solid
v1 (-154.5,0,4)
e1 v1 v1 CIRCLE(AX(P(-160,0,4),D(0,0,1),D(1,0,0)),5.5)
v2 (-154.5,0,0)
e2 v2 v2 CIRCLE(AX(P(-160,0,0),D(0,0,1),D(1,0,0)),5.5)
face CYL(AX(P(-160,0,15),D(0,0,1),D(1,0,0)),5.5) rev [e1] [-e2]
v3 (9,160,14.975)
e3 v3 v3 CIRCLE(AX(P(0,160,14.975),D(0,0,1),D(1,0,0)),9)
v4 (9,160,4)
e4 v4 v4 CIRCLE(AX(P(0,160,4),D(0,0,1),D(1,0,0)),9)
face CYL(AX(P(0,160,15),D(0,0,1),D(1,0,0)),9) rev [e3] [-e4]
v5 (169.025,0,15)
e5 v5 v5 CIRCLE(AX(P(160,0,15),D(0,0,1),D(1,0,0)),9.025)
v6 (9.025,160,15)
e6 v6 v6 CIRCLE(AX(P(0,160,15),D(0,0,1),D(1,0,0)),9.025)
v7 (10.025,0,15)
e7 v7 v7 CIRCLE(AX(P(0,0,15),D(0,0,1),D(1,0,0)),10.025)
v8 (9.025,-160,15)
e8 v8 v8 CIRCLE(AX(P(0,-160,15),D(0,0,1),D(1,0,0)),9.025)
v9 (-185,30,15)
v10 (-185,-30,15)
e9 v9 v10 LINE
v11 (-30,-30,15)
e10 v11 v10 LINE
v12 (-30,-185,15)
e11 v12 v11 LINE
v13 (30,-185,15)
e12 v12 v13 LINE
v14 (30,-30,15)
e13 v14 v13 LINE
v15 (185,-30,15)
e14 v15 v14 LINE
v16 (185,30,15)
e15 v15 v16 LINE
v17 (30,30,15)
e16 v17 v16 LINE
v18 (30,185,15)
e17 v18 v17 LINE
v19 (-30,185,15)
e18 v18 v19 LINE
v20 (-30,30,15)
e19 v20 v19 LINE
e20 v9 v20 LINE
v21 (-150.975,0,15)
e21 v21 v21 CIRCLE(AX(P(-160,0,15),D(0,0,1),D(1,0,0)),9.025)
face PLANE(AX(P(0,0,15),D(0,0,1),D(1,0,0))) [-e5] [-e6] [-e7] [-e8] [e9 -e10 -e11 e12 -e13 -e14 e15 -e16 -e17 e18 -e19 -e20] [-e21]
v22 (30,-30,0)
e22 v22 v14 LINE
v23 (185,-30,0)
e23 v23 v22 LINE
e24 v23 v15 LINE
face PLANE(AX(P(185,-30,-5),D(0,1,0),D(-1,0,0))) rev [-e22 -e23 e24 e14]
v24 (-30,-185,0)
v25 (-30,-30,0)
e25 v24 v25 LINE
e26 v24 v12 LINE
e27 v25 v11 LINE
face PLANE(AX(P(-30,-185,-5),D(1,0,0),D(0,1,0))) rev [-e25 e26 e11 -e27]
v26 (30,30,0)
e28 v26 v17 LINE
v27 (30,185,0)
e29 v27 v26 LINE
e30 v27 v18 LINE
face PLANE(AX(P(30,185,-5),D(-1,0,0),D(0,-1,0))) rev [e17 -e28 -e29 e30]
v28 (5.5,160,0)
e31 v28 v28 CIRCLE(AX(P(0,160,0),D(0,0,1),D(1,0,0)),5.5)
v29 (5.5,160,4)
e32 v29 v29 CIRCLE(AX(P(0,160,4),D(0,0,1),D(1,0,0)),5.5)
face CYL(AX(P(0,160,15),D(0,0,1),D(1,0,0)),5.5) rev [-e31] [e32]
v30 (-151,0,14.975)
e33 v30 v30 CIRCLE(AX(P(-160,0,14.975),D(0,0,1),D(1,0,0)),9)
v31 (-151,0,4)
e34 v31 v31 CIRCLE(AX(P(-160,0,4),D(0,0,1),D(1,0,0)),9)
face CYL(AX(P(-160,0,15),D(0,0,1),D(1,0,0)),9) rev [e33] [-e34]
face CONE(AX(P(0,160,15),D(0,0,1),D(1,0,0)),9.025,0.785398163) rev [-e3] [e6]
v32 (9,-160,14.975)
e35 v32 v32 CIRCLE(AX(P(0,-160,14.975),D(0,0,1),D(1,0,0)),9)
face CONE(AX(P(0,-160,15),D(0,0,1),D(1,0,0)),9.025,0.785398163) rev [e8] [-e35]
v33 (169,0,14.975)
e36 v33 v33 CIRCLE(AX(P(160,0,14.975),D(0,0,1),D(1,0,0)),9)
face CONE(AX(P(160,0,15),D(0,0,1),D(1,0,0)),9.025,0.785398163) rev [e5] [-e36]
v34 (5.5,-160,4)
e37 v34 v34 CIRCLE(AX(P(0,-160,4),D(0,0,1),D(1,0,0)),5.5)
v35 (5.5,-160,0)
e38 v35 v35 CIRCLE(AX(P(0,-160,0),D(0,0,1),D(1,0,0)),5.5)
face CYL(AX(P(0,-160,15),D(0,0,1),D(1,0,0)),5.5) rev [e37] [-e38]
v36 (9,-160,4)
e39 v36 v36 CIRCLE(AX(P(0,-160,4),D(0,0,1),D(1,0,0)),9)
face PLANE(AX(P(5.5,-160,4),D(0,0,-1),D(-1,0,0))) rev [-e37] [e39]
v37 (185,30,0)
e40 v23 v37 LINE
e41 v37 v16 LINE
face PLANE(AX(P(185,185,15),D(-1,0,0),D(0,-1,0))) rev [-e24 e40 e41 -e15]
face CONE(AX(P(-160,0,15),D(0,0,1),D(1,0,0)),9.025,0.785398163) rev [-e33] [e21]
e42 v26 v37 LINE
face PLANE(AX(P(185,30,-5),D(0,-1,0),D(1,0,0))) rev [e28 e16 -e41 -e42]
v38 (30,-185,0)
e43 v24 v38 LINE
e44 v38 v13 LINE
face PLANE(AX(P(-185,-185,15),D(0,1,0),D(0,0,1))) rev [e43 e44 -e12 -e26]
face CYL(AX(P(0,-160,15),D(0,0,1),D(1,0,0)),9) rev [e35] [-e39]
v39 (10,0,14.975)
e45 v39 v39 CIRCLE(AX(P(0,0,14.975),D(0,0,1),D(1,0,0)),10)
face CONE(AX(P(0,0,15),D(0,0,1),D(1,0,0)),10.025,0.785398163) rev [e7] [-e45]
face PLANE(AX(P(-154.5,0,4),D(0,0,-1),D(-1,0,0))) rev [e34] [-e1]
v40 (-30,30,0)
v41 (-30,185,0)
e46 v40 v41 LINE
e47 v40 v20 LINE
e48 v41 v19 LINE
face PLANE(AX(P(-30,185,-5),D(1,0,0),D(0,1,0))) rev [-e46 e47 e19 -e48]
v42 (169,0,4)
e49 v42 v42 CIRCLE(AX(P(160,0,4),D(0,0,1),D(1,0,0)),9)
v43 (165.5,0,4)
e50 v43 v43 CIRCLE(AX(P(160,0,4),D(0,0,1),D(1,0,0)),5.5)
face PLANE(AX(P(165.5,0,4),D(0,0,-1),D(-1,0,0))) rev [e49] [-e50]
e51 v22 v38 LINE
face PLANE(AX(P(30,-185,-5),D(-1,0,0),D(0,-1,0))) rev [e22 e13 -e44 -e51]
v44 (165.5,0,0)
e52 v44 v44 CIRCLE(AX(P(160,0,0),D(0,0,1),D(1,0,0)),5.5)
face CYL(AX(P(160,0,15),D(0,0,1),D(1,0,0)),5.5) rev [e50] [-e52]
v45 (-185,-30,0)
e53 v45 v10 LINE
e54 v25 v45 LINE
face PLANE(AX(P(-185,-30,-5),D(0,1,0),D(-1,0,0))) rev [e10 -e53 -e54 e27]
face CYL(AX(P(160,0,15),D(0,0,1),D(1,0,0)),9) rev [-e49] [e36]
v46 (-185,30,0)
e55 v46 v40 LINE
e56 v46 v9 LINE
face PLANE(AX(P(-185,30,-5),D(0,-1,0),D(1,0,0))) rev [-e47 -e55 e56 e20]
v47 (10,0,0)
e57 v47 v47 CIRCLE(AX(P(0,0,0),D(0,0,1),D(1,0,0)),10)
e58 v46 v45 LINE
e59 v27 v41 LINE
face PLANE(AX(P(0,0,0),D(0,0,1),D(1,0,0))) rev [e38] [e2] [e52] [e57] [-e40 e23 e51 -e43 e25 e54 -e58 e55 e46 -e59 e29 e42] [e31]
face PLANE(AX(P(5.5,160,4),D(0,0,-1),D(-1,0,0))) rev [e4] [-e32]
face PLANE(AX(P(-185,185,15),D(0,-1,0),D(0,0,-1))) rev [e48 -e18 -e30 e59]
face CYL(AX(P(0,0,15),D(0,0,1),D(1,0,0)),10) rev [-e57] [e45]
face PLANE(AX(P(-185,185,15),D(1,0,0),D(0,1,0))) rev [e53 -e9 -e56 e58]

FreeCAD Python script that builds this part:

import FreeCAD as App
import Part
import Sketcher
Q = App.Units.Quantity

doc = App.newDocument("Part")
body = doc.addObject("PartDesign::Body", "Body")

sketch1 = body.newObject("Sketcher::SketchObject", "Sketch")
sketch1.AttachmentSupport = (doc.getObject("XY_Plane"), [""])
sketch1.MapMode = "FlatFace"
sketch1.addGeometry(Part.LineSegment(App.Vector(-185, 185, 0), App.Vector(-185, -185, 0)), False)
sketch1.addGeometry(Part.LineSegment(App.Vector(-185, -185, 0), App.Vector(185, -185, 0)), False)
sketch1.addGeometry(Part.LineSegment(App.Vector(185, -185, 0), App.Vector(185, 185, 0)), False)
sketch1.addGeometry(Part.LineSegment(App.Vector(185, 185, 0), App.Vector(-185, 185, 0)), False)
sketch1.addConstraint(Sketcher.Constraint("Coincident", 0, 2, 1, 1))
sketch1.addConstraint(Sketcher.Constraint("Coincident", 1, 2, 2, 1))
sketch1.addConstraint(Sketcher.Constraint("Coincident", 2, 2, 3, 1))
sketch1.addConstraint(Sketcher.Constraint("Coincident", 3, 2, 0, 1))
sketch1.addConstraint(Sketcher.Constraint("Vertical", 0))
sketch1.addConstraint(Sketcher.Constraint("Horizontal", 1))
sketch1.addConstraint(Sketcher.Constraint("Vertical", 2))
sketch1.addConstraint(Sketcher.Constraint("Horizontal", 3))
sketch1.addConstraint(Sketcher.Constraint("Symmetric", 0, 2, 2, 2, -1, 1))
sketch1.addConstraint(Sketcher.Constraint("Equal", 3, 0))
sketch1.addConstraint(Sketcher.Constraint("DistanceX", 1, 1, 1, 2, 370.0))
pad1 = body.newObject("PartDesign::Pad", "Pad")
pad1.Profile = sketch1
pad1.Length = 15

sketch2 = body.newObject("Sketcher::SketchObject", "Sketch001")
sketch2.AttachmentSupport = (doc.getObject("XY_Plane"), [""])
sketch2.MapMode = "FlatFace"
sketch2.AttachmentOffset = App.Placement(App.Vector(0, 0, 15), App.Rotation())
sketch2.addGeometry(Part.LineSegment(App.Vector(30, 185, 0), App.Vector(30, 30, 0)), False)
sketch2.addGeometry(Part.LineSegment(App.Vector(30, 30, 0), App.Vector(185, 30, 0)), False)
sketch2.addGeometry(Part.LineSegment(App.Vector(185, 30, 0), App.Vector(185, 185, 0)), False)
sketch2.addGeometry(Part.LineSegment(App.Vector(185, 185, 0), App.Vector(30, 185, 0)), False)
sketch2.addGeometry(Part.LineSegment(App.Vector(-185, 185, 0), App.Vector(-185, 30, 0)), False)
sketch2.addGeometry(Part.LineSegment(App.Vector(-185, 30, 0), App.Vector(-30, 30, 0)), False)
sketch2.addGeometry(Part.LineSegment(App.Vector(-30, 30, 0), App.Vector(-30, 185, 0)), False)
sketch2.addGeometry(Part.LineSegment(App.Vector(-30, 185, 0), App.Vector(-185, 185, 0)), False)
sketch2.addGeometry(Part.LineSegment(App.Vector(-185, -30, 0), App.Vector(-185, -185, 0)), False)
sketch2.addGeometry(Part.LineSegment(App.Vector(-185, -185, 0), App.Vector(-30, -185, 0)), False)
sketch2.addGeometry(Part.LineSegment(App.Vector(-30, -185, 0), App.Vector(-30, -30, 0)), False)
sketch2.addGeometry(Part.LineSegment(App.Vector(-30, -30, 0), App.Vector(-185, -30, 0)), False)
sketch2.addGeometry(Part.LineSegment(App.Vector(30, -30, 0), App.Vector(30, -185, 0)), False)
sketch2.addGeometry(Part.LineSegment(App.Vector(30, -185, 0), App.Vector(185, -185, 0)), False)
sketch2.addGeometry(Part.LineSegment(App.Vector(185, -185, 0), App.Vector(185, -30, 0)), False)
sketch2.addGeometry(Part.LineSegment(App.Vector(185, -30, 0), App.Vector(30, -30, 0)), False)
sketch2.addConstraint(Sketcher.Constraint("Coincident", 0, 2, 1, 1))
sketch2.addConstraint(Sketcher.Constraint("Coincident", 1, 2, 2, 1))
sketch2.addConstraint(Sketcher.Constraint("Coincident", 2, 2, 3, 1))
sketch2.addConstraint(Sketcher.Constraint("Coincident", 3, 2, 0, 1))
sketch2.addConstraint(Sketcher.Constraint("Coincident", 4, 2, 5, 1))
sketch2.addConstraint(Sketcher.Constraint("Coincident", 5, 2, 6, 1))
sketch2.addConstraint(Sketcher.Constraint("Coincident", 6, 2, 7, 1))
sketch2.addConstraint(Sketcher.Constraint("Coincident", 7, 2, 4, 1))
sketch2.addConstraint(Sketcher.Constraint("Coincident", 8, 2, 9, 1))
sketch2.addConstraint(Sketcher.Constraint("Coincident", 9, 2, 10, 1))
sketch2.addConstraint(Sketcher.Constraint("Coincident", 10, 2, 11, 1))
sketch2.addConstraint(Sketcher.Constraint("Coincident", 11, 2, 8, 1))
sketch2.addConstraint(Sketcher.Constraint("Coincident", 12, 2, 13, 1))
sketch2.addConstraint(Sketcher.Constraint("Coincident", 13, 2, 14, 1))
sketch2.addConstraint(Sketcher.Constraint("Coincident", 14, 2, 15, 1))
sketch2.addConstraint(Sketcher.Constraint("Coincident", 15, 2, 12, 1))
sketch2.addConstraint(Sketcher.Constraint("Vertical", 0))
sketch2.addConstraint(Sketcher.Constraint("Horizontal", 1))
sketch2.addConstraint(Sketcher.Constraint("Vertical", 2))
sketch2.addConstraint(Sketcher.Constraint("Horizontal", 3))
sketch2.addConstraint(Sketcher.Constraint("Vertical", 4))
sketch2.addConstraint(Sketcher.Constraint("Horizontal", 5))
sketch2.addConstraint(Sketcher.Constraint("Vertical", 6))
sketch2.addConstraint(Sketcher.Constraint("Horizontal", 7))
sketch2.addConstraint(Sketcher.Constraint("Vertical", 8))
sketch2.addConstraint(Sketcher.Constraint("Horizontal", 9))
sketch2.addConstraint(Sketcher.Constraint("Vertical", 10))
sketch2.addConstraint(Sketcher.Constraint("Horizontal", 11))
sketch2.addConstraint(Sketcher.Constraint("Vertical", 12))
sketch2.addConstraint(Sketcher.Constraint("Horizontal", 13))
sketch2.addConstraint(Sketcher.Constraint("Vertical", 14))
sketch2.addConstraint(Sketcher.Constraint("Horizontal", 15))
sketch2.addConstraint(Sketcher.Constraint("Symmetric", 2, 2, 8, 2, -1, 1))
sketch2.addConstraint(Sketcher.Constraint("Symmetric", 0, 2, 10, 2, -1, 1))
sketch2.addConstraint(Sketcher.Constraint("Symmetric", 6, 2, 12, 2, -1, 1))
sketch2.addConstraint(Sketcher.Constraint("Symmetric", 4, 2, 14, 2, -1, 1))
sketch2.addConstraint(Sketcher.Constraint("Symmetric", 1, 2, 4, 2, -2))
sketch2.addConstraint(Sketcher.Constraint("Symmetric", 3, 2, 6, 2, -2))
sketch2.addConstraint(Sketcher.Constraint("Equal", 15, 0))
sketch2.addConstraint(Sketcher.Constraint("DistanceX", 1, 1, 1, 2, 155.0))
sketch2.addConstraint(Sketcher.Constraint("DistanceX", -1, 1, 0, 2, 30.0))
sketch2.addConstraint(Sketcher.Constraint("DistanceY", -1, 1, 0, 2, 30.0))
pocket1 = body.newObject("PartDesign::Pocket", "Pocket")
pocket1.Profile = sketch2
pocket1.Length = 20

sketch3 = body.newObject("Sketcher::SketchObject", "Sketch002")
sketch3.AttachmentSupport = (doc.getObject("YZ_Plane"), [""])
sketch3.MapMode = "FlatFace"
sketch3.AttachmentOffset = App.Placement(App.Vector(0, 0, -160), App.Rotation())
sketch3.addGeometry(Part.LineSegment(App.Vector(0, -5.305, 0), App.Vector(0, 15, 0)), False)
sketch3.addGeometry(Part.LineSegment(App.Vector(0, 15, 0), App.Vector(-9.025, 15, 0)), False)
sketch3.addGeometry(Part.LineSegment(App.Vector(-9.025, 15, 0), App.Vector(-9, 14.975, 0)), False)
sketch3.addGeometry(Part.LineSegment(App.Vector(-9, 14.975, 0), App.Vector(-9, 4, 0)), False)
sketch3.addGeometry(Part.LineSegment(App.Vector(-9, 4, 0), App.Vector(-5.5, 4, 0)), False)
sketch3.addGeometry(Part.LineSegment(App.Vector(-5.5, 4, 0), App.Vector(-5.5, -2, 0)), False)
sketch3.addGeometry(Part.LineSegment(App.Vector(-5.5, -2, 0), App.Vector(0, -5.305, 0)), False)
sketch3.addConstraint(Sketcher.Constraint("Coincident", 0, 2, 1, 1))
sketch3.addConstraint(Sketcher.Constraint("Coincident", 1, 2, 2, 1))
sketch3.addConstraint(Sketcher.Constraint("Coincident", 2, 2, 3, 1))
sketch3.addConstraint(Sketcher.Constraint("Coincident", 3, 2, 4, 1))
sketch3.addConstraint(Sketcher.Constraint("Coincident", 4, 2, 5, 1))
sketch3.addConstraint(Sketcher.Constraint("Coincident", 5, 2, 6, 1))
sketch3.addConstraint(Sketcher.Constraint("Coincident", 6, 2, 0, 1))
sketch3.addConstraint(Sketcher.Constraint("Vertical", 0))
sketch3.addConstraint(Sketcher.Constraint("Horizontal", 1))
sketch3.addConstraint(Sketcher.Constraint("Vertical", 3))
sketch3.addConstraint(Sketcher.Constraint("Horizontal", 4))
sketch3.addConstraint(Sketcher.Constraint("Vertical", 5))
sketch3.addConstraint(Sketcher.Constraint("PointOnObject", 0, 2, -2))
sketch3.addConstraint(Sketcher.Constraint("DistanceY", 5, 2, 5, 1, 6.0))
sketch3.addConstraint(Sketcher.Constraint("Angle", 2, Q("-45 deg")))
sketch3.addConstraint(Sketcher.Constraint("Angle", 6, Q("-31 deg")))
sketch3.addConstraint(Sketcher.Constraint("DistanceX", 4, 1, 4, 2, 3.5))
sketch3.addConstraint(Sketcher.Constraint("DistanceY", -1, 1, 0, 2, 15.0))
sketch3.addConstraint(Sketcher.Constraint("DistanceX", 2, 2, -1, 1, 9.0))
sketch3.addConstraint(Sketcher.Constraint("DistanceY", -1, 1, 3, 2, 4.0))
sketch3.addConstraint(Sketcher.Constraint("DistanceX", 1, 2, 1, 1, 9.025))
groove = body.newObject("PartDesign::Groove", "Groove")
groove.Profile = sketch3
groove.ReferenceAxis = (sketch3, ["V_Axis"])
groove.Angle = 360
doc.recompute()

linearpattern = body.newObject("PartDesign::LinearPattern", "LinearPattern")
linearpattern.Originals = [groove]
linearpattern.Direction = (doc.getObject("X_Axis"), [""])
linearpattern.Mode = "offset"
linearpattern.Offset = 320
linearpattern.Occurrences = 2
body.Tip = linearpattern
doc.recompute()

datumline = body.newObject("PartDesign::Line", "DatumLine")
datumline.Placement = App.Placement(App.Vector(0, 0, 0), App.Rotation(App.Vector(0, 0, 1), App.Vector(0.707106781, 0.707106781, 0)))
linearpattern2 = body.newObject("PartDesign::LinearPattern", "LinearPattern001")
linearpattern2.Originals = [groove]
linearpattern2.Direction = (datumline, [""])
linearpattern2.Mode = "offset"
linearpattern2.Offset = 226.27417
linearpattern2.Occurrences = 2
body.Tip = linearpattern2
doc.recompute()

datumline2 = body.newObject("PartDesign::Line", "DatumLine001")
datumline2.Placement = App.Placement(App.Vector(0, 0, 0), App.Rotation(App.Vector(0, 0, 1), App.Vector(0.707106781, -0.707106781, 0)))
linearpattern3 = body.newObject("PartDesign::LinearPattern", "LinearPattern002")
linearpattern3.Originals = [groove]
linearpattern3.Direction = (datumline2, [""])
linearpattern3.Mode = "offset"
linearpattern3.Offset = 226.27417
linearpattern3.Occurrences = 2
body.Tip = linearpattern3

sketch4 = body.newObject("Sketcher::SketchObject", "Sketch003")
sketch4.AttachmentSupport = (doc.getObject("XY_Plane"), [""])
sketch4.MapMode = "FlatFace"
sketch4.AttachmentOffset = App.Placement(App.Vector(0, 0, 15), App.Rotation())
sketch4.addGeometry(Part.Circle(App.Vector(0, 0, 0), App.Vector(0, 0, 1), 10), False)
sketch4.addConstraint(Sketcher.Constraint("Coincident", 0, 3, -1, 1))
sketch4.addConstraint(Sketcher.Constraint("Diameter", 0, 20.0))
doc.recompute()
hole = body.newObject("PartDesign::Hole", "Hole")
hole.Profile = sketch4
hole.ThreadType = "None"
hole.Diameter = 20
hole.DepthType = "Dimension"
hole.Depth = 17
hole.DrillPoint = "Angled"
hole.DrillPointAngle = 118
hole.HoleCutType = "Countersink"
hole.HoleCutDiameter = 20.05
hole.HoleCutCountersinkAngle = 90

doc.recompute()
